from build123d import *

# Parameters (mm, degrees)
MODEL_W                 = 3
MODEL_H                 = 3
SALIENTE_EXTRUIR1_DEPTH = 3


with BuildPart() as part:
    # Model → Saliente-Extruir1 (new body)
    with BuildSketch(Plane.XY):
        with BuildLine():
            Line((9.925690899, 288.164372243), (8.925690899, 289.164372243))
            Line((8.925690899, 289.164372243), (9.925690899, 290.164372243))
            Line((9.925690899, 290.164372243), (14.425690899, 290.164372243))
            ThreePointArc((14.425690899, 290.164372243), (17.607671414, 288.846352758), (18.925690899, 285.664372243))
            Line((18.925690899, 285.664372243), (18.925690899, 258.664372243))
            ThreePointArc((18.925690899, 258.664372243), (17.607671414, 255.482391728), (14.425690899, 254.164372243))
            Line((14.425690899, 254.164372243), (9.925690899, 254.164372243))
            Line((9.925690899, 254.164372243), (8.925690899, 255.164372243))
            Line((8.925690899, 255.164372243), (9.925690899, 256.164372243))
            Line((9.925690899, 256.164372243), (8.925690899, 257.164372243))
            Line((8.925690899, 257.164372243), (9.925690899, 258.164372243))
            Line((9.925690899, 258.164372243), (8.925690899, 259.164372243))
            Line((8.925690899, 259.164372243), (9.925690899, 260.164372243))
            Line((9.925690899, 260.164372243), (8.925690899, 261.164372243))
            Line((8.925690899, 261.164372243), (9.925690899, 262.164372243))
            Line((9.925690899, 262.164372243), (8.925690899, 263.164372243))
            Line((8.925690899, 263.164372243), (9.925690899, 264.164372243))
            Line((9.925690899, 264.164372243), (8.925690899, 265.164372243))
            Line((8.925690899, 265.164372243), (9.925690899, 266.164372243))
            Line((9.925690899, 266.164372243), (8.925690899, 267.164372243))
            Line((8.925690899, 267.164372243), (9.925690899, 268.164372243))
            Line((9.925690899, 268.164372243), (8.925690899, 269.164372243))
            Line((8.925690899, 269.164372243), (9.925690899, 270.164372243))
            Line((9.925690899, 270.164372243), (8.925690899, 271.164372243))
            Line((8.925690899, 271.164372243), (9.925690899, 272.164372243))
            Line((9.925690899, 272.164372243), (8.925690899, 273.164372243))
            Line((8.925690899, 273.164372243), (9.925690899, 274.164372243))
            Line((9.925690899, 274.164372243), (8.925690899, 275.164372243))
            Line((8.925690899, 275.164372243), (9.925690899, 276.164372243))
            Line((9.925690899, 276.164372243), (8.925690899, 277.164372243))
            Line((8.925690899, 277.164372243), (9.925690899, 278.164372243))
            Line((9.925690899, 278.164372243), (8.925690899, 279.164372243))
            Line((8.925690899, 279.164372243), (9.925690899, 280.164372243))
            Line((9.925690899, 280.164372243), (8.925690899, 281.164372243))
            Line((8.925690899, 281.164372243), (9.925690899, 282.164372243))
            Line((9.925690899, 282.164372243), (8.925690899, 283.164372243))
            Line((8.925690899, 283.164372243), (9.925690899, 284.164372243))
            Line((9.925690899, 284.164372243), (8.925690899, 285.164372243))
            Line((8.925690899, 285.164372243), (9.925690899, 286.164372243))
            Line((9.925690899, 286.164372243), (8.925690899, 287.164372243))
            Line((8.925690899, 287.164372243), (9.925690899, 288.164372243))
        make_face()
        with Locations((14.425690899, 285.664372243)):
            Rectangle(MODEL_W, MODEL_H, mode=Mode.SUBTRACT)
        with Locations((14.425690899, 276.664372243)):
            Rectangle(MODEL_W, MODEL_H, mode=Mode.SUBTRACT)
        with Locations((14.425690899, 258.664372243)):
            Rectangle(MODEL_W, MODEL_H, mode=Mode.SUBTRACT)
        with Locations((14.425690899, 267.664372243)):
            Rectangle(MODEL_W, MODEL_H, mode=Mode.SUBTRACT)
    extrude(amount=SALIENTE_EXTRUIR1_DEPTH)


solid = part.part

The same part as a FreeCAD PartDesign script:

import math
import FreeCAD as App
import Part
import Sketcher
from FreeCAD import Vector

doc = App.newDocument("Part")
body = doc.addObject("PartDesign::Body", "Body")

# Sketch on XY plane
sketch1 = body.newObject("Sketcher::SketchObject", "Sketch")
sketch1.AttachmentSupport = (doc.getObject("XY_Plane"), [""])
sketch1.MapMode = "FlatFace"
sketch1.addGeometry(Part.LineSegment(Vector(8.925691, 289.164372, 0), Vector(9.925691, 288.164372, 0)), False)
sketch1.addGeometry(Part.LineSegment(Vector(9.925691, 288.164372, 0), Vector(8.925691, 287.164372, 0)), False)
sketch1.addGeometry(Part.LineSegment(Vector(8.925691, 287.164372, 0), Vector(9.925691, 286.164372, 0)), False)
sketch1.addGeometry(Part.LineSegment(Vector(9.925691, 286.164372, 0), Vector(8.925691, 285.164372, 0)), False)
sketch1.addGeometry(Part.LineSegment(Vector(8.925691, 285.164372, 0), Vector(9.925691, 284.164372, 0)), False)
sketch1.addGeometry(Part.LineSegment(Vector(9.925691, 284.164372, 0), Vector(8.925691, 283.164372, 0)), False)
sketch1.addGeometry(Part.LineSegment(Vector(8.925691, 283.164372, 0), Vector(9.925691, 282.164372, 0)), False)
sketch1.addGeometry(Part.LineSegment(Vector(9.925691, 282.164372, 0), Vector(8.925691, 281.164372, 0)), False)
sketch1.addGeometry(Part.LineSegment(Vector(8.925691, 281.164372, 0), Vector(9.925691, 280.164372, 0)), False)
sketch1.addGeometry(Part.LineSegment(Vector(9.925691, 280.164372, 0), Vector(8.925691, 279.164372, 0)), False)
sketch1.addGeometry(Part.LineSegment(Vector(8.925691, 279.164372, 0), Vector(9.925691, 278.164372, 0)), False)
sketch1.addGeometry(Part.LineSegment(Vector(9.925691, 278.164372, 0), Vector(8.925691, 277.164372, 0)), False)
sketch1.addGeometry(Part.LineSegment(Vector(8.925691, 277.164372, 0), Vector(9.925691, 276.164372, 0)), False)
sketch1.addGeometry(Part.LineSegment(Vector(9.925691, 276.164372, 0), Vector(8.925691, 275.164372, 0)), False)
sketch1.addGeometry(Part.LineSegment(Vector(8.925691, 275.164372, 0), Vector(9.925691, 274.164372, 0)), False)
sketch1.addGeometry(Part.LineSegment(Vector(9.925691, 274.164372, 0), Vector(8.925691, 273.164372, 0)), False)
sketch1.addGeometry(Part.LineSegment(Vector(8.925691, 273.164372, 0), Vector(9.925691, 272.164372, 0)), False)
sketch1.addGeometry(Part.LineSegment(Vector(9.925691, 272.164372, 0), Vector(8.925691, 271.164372, 0)), False)
sketch1.addGeometry(Part.LineSegment(Vector(8.925691, 271.164372, 0), Vector(9.925691, 270.164372, 0)), False)
sketch1.addGeometry(Part.LineSegment(Vector(9.925691, 270.164372, 0), Vector(8.925691, 269.164372, 0)), False)
sketch1.addGeometry(Part.LineSegment(Vector(8.925691, 269.164372, 0), Vector(9.925691, 268.164372, 0)), False)
sketch1.addGeometry(Part.LineSegment(Vector(9.925691, 268.164372, 0), Vector(8.925691, 267.164372, 0)), False)
sketch1.addGeometry(Part.LineSegment(Vector(8.925691, 267.164372, 0), Vector(9.925691, 266.164372, 0)), False)
sketch1.addGeometry(Part.LineSegment(Vector(9.925691, 266.164372, 0), Vector(8.925691, 265.164372, 0)), False)
sketch1.addGeometry(Part.LineSegment(Vector(8.925691, 265.164372, 0), Vector(9.925691, 264.164372, 0)), False)
sketch1.addGeometry(Part.LineSegment(Vector(9.925691, 264.164372, 0), Vector(8.925691, 263.164372, 0)), False)
sketch1.addGeometry(Part.LineSegment(Vector(8.925691, 263.164372, 0), Vector(9.925691, 262.164372, 0)), False)
sketch1.addGeometry(Part.LineSegment(Vector(9.925691, 262.164372, 0), Vector(8.925691, 261.164372, 0)), False)
sketch1.addGeometry(Part.LineSegment(Vector(8.925691, 261.164372, 0), Vector(9.925691, 260.164372, 0)), False)
sketch1.addGeometry(Part.LineSegment(Vector(9.925691, 260.164372, 0), Vector(8.925691, 259.164372, 0)), False)
sketch1.addGeometry(Part.LineSegment(Vector(8.925691, 259.164372, 0), Vector(9.925691, 258.164372, 0)), False)
sketch1.addGeometry(Part.LineSegment(Vector(9.925691, 258.164372, 0), Vector(8.925691, 257.164372, 0)), False)
sketch1.addGeometry(Part.LineSegment(Vector(8.925691, 257.164372, 0), Vector(9.925691, 256.164372, 0)), False)
sketch1.addGeometry(Part.LineSegment(Vector(9.925691, 256.164372, 0), Vector(8.925691, 255.164372, 0)), False)
sketch1.addGeometry(Part.LineSegment(Vector(8.925691, 255.164372, 0), Vector(9.925691, 254.164372, 0)), False)
sketch1.addGeometry(Part.LineSegment(Vector(9.925691, 254.164372, 0), Vector(14.425691, 254.164372, 0)), False)
sketch1.addGeometry(Part.ArcOfCircle(Part.Circle(Vector(14.425691, 258.664372, 0), Vector(0, 0, 1), 4.5), math.radians(-90), math.radians(0)), False)
sketch1.addGeometry(Part.LineSegment(Vector(18.925691, 258.664372, 0), Vector(18.925691, 285.664372, 0)), False)
sketch1.addGeometry(Part.ArcOfCircle(Part.Circle(Vector(14.425691, 285.664372, 0), Vector(0, 0, 1), 4.5), math.radians(0), math.radians(90)), False)
sketch1.addGeometry(Part.LineSegment(Vector(14.425691, 290.164372, 0), Vector(9.925691, 290.164372, 0)), False)
sketch1.addGeometry(Part.LineSegment(Vector(9.925691, 290.164372, 0), Vector(8.925691, 289.164372, 0)), False)
sketch1.addGeometry(Part.LineSegment(Vector(12.925691, 257.164372, 0), Vector(12.925691, 260.164372, 0)), False)
sketch1.addGeometry(Part.LineSegment(Vector(12.925691, 260.164372, 0), Vector(15.925691, 260.164372, 0)), False)
sketch1.addGeometry(Part.LineSegment(Vector(15.925691, 260.164372, 0), Vector(15.925691, 257.164372, 0)), False)
sketch1.addGeometry(Part.LineSegment(Vector(15.925691, 257.164372, 0), Vector(12.925691, 257.164372, 0)), False)
sketch1.addGeometry(Part.LineSegment(Vector(12.925691, 266.164372, 0), Vector(12.925691, 269.164372, 0)), False)
sketch1.addGeometry(Part.LineSegment(Vector(12.925691, 269.164372, 0), Vector(15.925691, 269.164372, 0)), False)
sketch1.addGeometry(Part.LineSegment(Vector(15.925691, 269.164372, 0), Vector(15.925691, 266.164372, 0)), False)
sketch1.addGeometry(Part.LineSegment(Vector(15.925691, 266.164372, 0), Vector(12.925691, 266.164372, 0)), False)
sketch1.addGeometry(Part.LineSegment(Vector(12.925691, 275.164372, 0), Vector(12.925691, 278.164372, 0)), False)
sketch1.addGeometry(Part.LineSegment(Vector(12.925691, 278.164372, 0), Vector(15.925691, 278.164372, 0)), False)
sketch1.addGeometry(Part.LineSegment(Vector(15.925691, 278.164372, 0), Vector(15.925691, 275.164372, 0)), False)
sketch1.addGeometry(Part.LineSegment(Vector(15.925691, 275.164372, 0), Vector(12.925691, 275.164372, 0)), False)
sketch1.addGeometry(Part.LineSegment(Vector(12.925691, 284.164372, 0), Vector(12.925691, 287.164372, 0)), False)
sketch1.addGeometry(Part.LineSegment(Vector(12.925691, 287.164372, 0), Vector(15.925691, 287.164372, 0)), False)
sketch1.addGeometry(Part.LineSegment(Vector(15.925691, 287.164372, 0), Vector(15.925691, 284.164372, 0)), False)
sketch1.addGeometry(Part.LineSegment(Vector(15.925691, 284.164372, 0), Vector(12.925691, 284.164372, 0)), False)
sketch1.addConstraint(Sketcher.Constraint("Coincident", 0, 2, 1, 1))
sketch1.addConstraint(Sketcher.Constraint("Coincident", 1, 2, 2, 1))
sketch1.addConstraint(Sketcher.Constraint("Coincident", 2, 2, 3, 1))
sketch1.addConstraint(Sketcher.Constraint("Coincident", 3, 2, 4, 1))
sketch1.addConstraint(Sketcher.Constraint("Coincident", 4, 2, 5, 1))
sketch1.addConstraint(Sketcher.Constraint("Coincident", 5, 2, 6, 1))
sketch1.addConstraint(Sketcher.Constraint("Coincident", 6, 2, 7, 1))
sketch1.addConstraint(Sketcher.Constraint("Coincident", 7, 2, 8, 1))
sketch1.addConstraint(Sketcher.Constraint("Coincident", 8, 2, 9, 1))
sketch1.addConstraint(Sketcher.Constraint("Coincident", 9, 2, 10, 1))
sketch1.addConstraint(Sketcher.Constraint("Coincident", 10, 2, 11, 1))
sketch1.addConstraint(Sketcher.Constraint("Coincident", 11, 2, 12, 1))
sketch1.addConstraint(Sketcher.Constraint("Coincident", 12, 2, 13, 1))
sketch1.addConstraint(Sketcher.Constraint("Coincident", 13, 2, 14, 1))
sketch1.addConstraint(Sketcher.Constraint("Coincident", 14, 2, 15, 1))
sketch1.addConstraint(Sketcher.Constraint("Coincident", 15, 2, 16, 1))
sketch1.addConstraint(Sketcher.Constraint("Coincident", 16, 2, 17, 1))
sketch1.addConstraint(Sketcher.Constraint("Coincident", 17, 2, 18, 1))
sketch1.addConstraint(Sketcher.Constraint("Coincident", 18, 2, 19, 1))
sketch1.addConstraint(Sketcher.Constraint("Coincident", 19, 2, 20, 1))
sketch1.addConstraint(Sketcher.Constraint("Coincident", 20, 2, 21, 1))
sketch1.addConstraint(Sketcher.Constraint("Coincident", 21, 2, 22, 1))
sketch1.addConstraint(Sketcher.Constraint("Coincident", 22, 2, 23, 1))
sketch1.addConstraint(Sketcher.Constraint("Coincident", 23, 2, 24, 1))
sketch1.addConstraint(Sketcher.Constraint("Coincident", 24, 2, 25, 1))
sketch1.addConstraint(Sketcher.Constraint("Coincident", 25, 2, 26, 1))
sketch1.addConstraint(Sketcher.Constraint("Coincident", 26, 2, 27, 1))
sketch1.addConstraint(Sketcher.Constraint("Coincident", 27, 2, 28, 1))
sketch1.addConstraint(Sketcher.Constraint("Coincident", 28, 2, 29, 1))
sketch1.addConstraint(Sketcher.Constraint("Coincident", 29, 2, 30, 1))
sketch1.addConstraint(Sketcher.Constraint("Coincident", 30, 2, 31, 1))
sketch1.addConstraint(Sketcher.Constraint("Coincident", 31, 2, 32, 1))
sketch1.addConstraint(Sketcher.Constraint("Coincident", 32, 2, 33, 1))
sketch1.addConstraint(Sketcher.Constraint("Coincident", 33, 2, 34, 1))
sketch1.addConstraint(Sketcher.Constraint("Coincident", 34, 2, 35, 1))
sketch1.addConstraint(Sketcher.Constraint("Tangent", 35, 2, 36, 1))
sketch1.addConstraint(Sketcher.Constraint("Tangent", 36, 2, 37, 1))
sketch1.addConstraint(Sketcher.Constraint("Tangent", 37, 2, 38, 1))
sketch1.addConstraint(Sketcher.Constraint("Tangent", 38, 2, 39, 1))
sketch1.addConstraint(Sketcher.Constraint("Coincident", 39, 2, 40, 1))
sketch1.addConstraint(Sketcher.Constraint("Coincident", 40, 2, 0, 1))
sketch1.addConstraint(Sketcher.Constraint("Coincident", 41, 2, 42, 1))
sketch1.addConstraint(Sketcher.Constraint("Coincident", 42, 2, 43, 1))
sketch1.addConstraint(Sketcher.Constraint("Coincident", 43, 2, 44, 1))
sketch1.addConstraint(Sketcher.Constraint("Coincident", 44, 2, 41, 1))
sketch1.addConstraint(Sketcher.Constraint("Coincident", 45, 2, 46, 1))
sketch1.addConstraint(Sketcher.Constraint("Coincident", 46, 2, 47, 1))
sketch1.addConstraint(Sketcher.Constraint("Coincident", 47, 2, 48, 1))
sketch1.addConstraint(Sketcher.Constraint("Coincident", 48, 2, 45, 1))
sketch1.addConstraint(Sketcher.Constraint("Coincident", 49, 2, 50, 1))
sketch1.addConstraint(Sketcher.Constraint("Coincident", 50, 2, 51, 1))
sketch1.addConstraint(Sketcher.Constraint("Coincident", 51, 2, 52, 1))
sketch1.addConstraint(Sketcher.Constraint("Coincident", 52, 2, 49, 1))
sketch1.addConstraint(Sketcher.Constraint("Coincident", 53, 2, 54, 1))
sketch1.addConstraint(Sketcher.Constraint("Coincident", 54, 2, 55, 1))
sketch1.addConstraint(Sketcher.Constraint("Coincident", 55, 2, 56, 1))
sketch1.addConstraint(Sketcher.Constraint("Coincident", 56, 2, 53, 1))
sketch1.addConstraint(Sketcher.Constraint("Horizontal", 35))
sketch1.addConstraint(Sketcher.Constraint("Vertical", 37))
sketch1.addConstraint(Sketcher.Constraint("Horizontal", 39))
sketch1.addConstraint(Sketcher.Constraint("Vertical", 41))
sketch1.addConstraint(Sketcher.Constraint("Horizontal", 42))
sketch1.addConstraint(Sketcher.Constraint("Vertical", 43))
sketch1.addConstraint(Sketcher.Constraint("Horizontal", 44))
sketch1.addConstraint(Sketcher.Constraint("Vertical", 45))
sketch1.addConstraint(Sketcher.Constraint("Horizontal", 46))
sketch1.addConstraint(Sketcher.Constraint("Vertical", 47))
sketch1.addConstraint(Sketcher.Constraint("Horizontal", 48))
sketch1.addConstraint(Sketcher.Constraint("Vertical", 49))
sketch1.addConstraint(Sketcher.Constraint("Horizontal", 50))
sketch1.addConstraint(Sketcher.Constraint("Vertical", 51))
sketch1.addConstraint(Sketcher.Constraint("Horizontal", 52))
sketch1.addConstraint(Sketcher.Constraint("Vertical", 53))
sketch1.addConstraint(Sketcher.Constraint("Horizontal", 54))
sketch1.addConstraint(Sketcher.Constraint("Vertical", 55))
sketch1.addConstraint(Sketcher.Constraint("Horizontal", 56))
sketch1.addConstraint(Sketcher.Constraint("Equal", 36, 38))
sketch1.addConstraint(Sketcher.Constraint("Perpendicular", 0, 1))
sketch1.addConstraint(Sketcher.Constraint("Perpendicular", 1, 2))
sketch1.addConstraint(Sketcher.Constraint("Perpendicular", 2, 3))
sketch1.addConstraint(Sketcher.Constraint("Perpendicular", 3, 4))
sketch1.addConstraint(Sketcher.Constraint("Perpendicular", 4, 5))
sketch1.addConstraint(Sketcher.Constraint("Perpendicular", 5, 6))
sketch1.addConstraint(Sketcher.Constraint("Perpendicular", 6, 7))
sketch1.addConstraint(Sketcher.Constraint("Perpendicular", 7, 8))
sketch1.addConstraint(Sketcher.Constraint("Perpendicular", 8, 9))
sketch1.addConstraint(Sketcher.Constraint("Perpendicular", 9, 10))
sketch1.addConstraint(Sketcher.Constraint("Perpendicular", 10, 11))
sketch1.addConstraint(Sketcher.Constraint("Perpendicular", 11, 12))
sketch1.addConstraint(Sketcher.Constraint("Perpendicular", 12, 13))
sketch1.addConstraint(Sketcher.Constraint("Perpendicular", 13, 14))
sketch1.addConstraint(Sketcher.Constraint("Perpendicular", 14, 15))
sketch1.addConstraint(Sketcher.Constraint("Perpendicular", 15, 16))
sketch1.addConstraint(Sketcher.Constraint("Perpendicular", 16, 17))
sketch1.addConstraint(Sketcher.Constraint("Perpendicular", 17, 18))
sketch1.addConstraint(Sketcher.Constraint("Perpendicular", 18, 19))
sketch1.addConstraint(Sketcher.Constraint("Perpendicular", 19, 20))
sketch1.addConstraint(Sketcher.Constraint("Perpendicular", 20, 21))
sketch1.addConstraint(Sketcher.Constraint("Perpendicular", 21, 22))
sketch1.addConstraint(Sketcher.Constraint("Perpendicular", 22, 23))
sketch1.addConstraint(Sketcher.Constraint("Perpendicular", 23, 24))
sketch1.addConstraint(Sketcher.Constraint("Perpendicular", 24, 25))
sketch1.addConstraint(Sketcher.Constraint("Perpendicular", 25, 26))
sketch1.addConstraint(Sketcher.Constraint("Perpendicular", 26, 27))
sketch1.addConstraint(Sketcher.Constraint("Perpendicular", 27, 28))
sketch1.addConstraint(Sketcher.Constraint("Perpendicular", 28, 29))
sketch1.addConstraint(Sketcher.Constraint("Perpendicular", 29, 30))
sketch1.addConstraint(Sketcher.Constraint("Perpendicular", 30, 31))
sketch1.addConstraint(Sketcher.Constraint("Perpendicular", 31, 32))
sketch1.addConstraint(Sketcher.Constraint("Perpendicular", 32, 33))
sketch1.addConstraint(Sketcher.Constraint("Perpendicular", 33, 34))
sketch1.addConstraint(Sketcher.Constraint("Perpendicular", 34, 40))
sketch1.addConstraint(Sketcher.Constraint("Horizontal", 28, 2, 41, 2))
sketch1.addConstraint(Sketcher.Constraint("Horizontal", 31, 2, 43, 2))
sketch1.addConstraint(Sketcher.Constraint("Horizontal", 19, 2, 45, 2))
sketch1.addConstraint(Sketcher.Constraint("Horizontal", 22, 2, 47, 2))
sketch1.addConstraint(Sketcher.Constraint("Horizontal", 10, 2, 49, 2))
sketch1.addConstraint(Sketcher.Constraint("Horizontal", 13, 2, 51, 2))
sketch1.addConstraint(Sketcher.Constraint("Horizontal", 1, 2, 53, 2))
sketch1.addConstraint(Sketcher.Constraint("Horizontal", 4, 2, 55, 2))
sketch1.addConstraint(Sketcher.Constraint("Vertical", 0, 2, 2, 2))
sketch1.addConstraint(Sketcher.Constraint("Vertical", 1, 2, 3, 2))
sketch1.addConstraint(Sketcher.Constraint("Vertical", 2, 2, 4, 2))
sketch1.addConstraint(Sketcher.Constraint("Vertical", 3, 2, 5, 2))
sketch1.addConstraint(Sketcher.Constraint("Vertical", 4, 2, 6, 2))
sketch1.addConstraint(Sketcher.Constraint("Vertical", 5, 2, 7, 2))
sketch1.addConstraint(Sketcher.Constraint("Vertical", 6, 2, 8, 2))
sketch1.addConstraint(Sketcher.Constraint("Vertical", 7, 2, 9, 2))
sketch1.addConstraint(Sketcher.Constraint("Vertical", 8, 2, 10, 2))
sketch1.addConstraint(Sketcher.Constraint("Vertical", 9, 2, 11, 2))
sketch1.addConstraint(Sketcher.Constraint("Vertical", 10, 2, 12, 2))
sketch1.addConstraint(Sketcher.Constraint("Vertical", 11, 2, 13, 2))
sketch1.addConstraint(Sketcher.Constraint("Vertical", 12, 2, 14, 2))
sketch1.addConstraint(Sketcher.Constraint("Vertical", 13, 2, 15, 2))
sketch1.addConstraint(Sketcher.Constraint("Vertical", 14, 2, 16, 2))
sketch1.addConstraint(Sketcher.Constraint("Vertical", 15, 2, 17, 2))
sketch1.addConstraint(Sketcher.Constraint("Vertical", 16, 2, 18, 2))
sketch1.addConstraint(Sketcher.Constraint("Vertical", 17, 2, 19, 2))
sketch1.addConstraint(Sketcher.Constraint("Vertical", 18, 2, 20, 2))
sketch1.addConstraint(Sketcher.Constraint("Vertical", 19, 2, 21, 2))
sketch1.addConstraint(Sketcher.Constraint("Vertical", 20, 2, 22, 2))
sketch1.addConstraint(Sketcher.Constraint("Vertical", 21, 2, 23, 2))
sketch1.addConstraint(Sketcher.Constraint("Vertical", 22, 2, 24, 2))
sketch1.addConstraint(Sketcher.Constraint("Vertical", 23, 2, 25, 2))
sketch1.addConstraint(Sketcher.Constraint("Vertical", 24, 2, 26, 2))
sketch1.addConstraint(Sketcher.Constraint("Vertical", 25, 2, 27, 2))
sketch1.addConstraint(Sketcher.Constraint("Vertical", 26, 2, 28, 2))
sketch1.addConstraint(Sketcher.Constraint("Vertical", 27, 2, 29, 2))
sketch1.addConstraint(Sketcher.Constraint("Vertical", 28, 2, 30, 2))
sketch1.addConstraint(Sketcher.Constraint("Vertical", 29, 2, 31, 2))
sketch1.addConstraint(Sketcher.Constraint("Vertical", 30, 2, 32, 2))
sketch1.addConstraint(Sketcher.Constraint("Vertical", 31, 2, 33, 2))
sketch1.addConstraint(Sketcher.Constraint("Vertical", 32, 2, 34, 2))
sketch1.addConstraint(Sketcher.Constraint("Vertical", 34, 2, 39, 2))
sketch1.addConstraint(Sketcher.Constraint("Vertical", 33, 2, 40, 2))
sketch1.addConstraint(Sketcher.Constraint("Vertical", 44, 2, 45, 2))
sketch1.addConstraint(Sketcher.Constraint("Vertical", 43, 2, 46, 2))
sketch1.addConstraint(Sketcher.Constraint("Vertical", 48, 2, 49, 2))
sketch1.addConstraint(Sketcher.Constraint("Vertical", 47, 2, 50, 2))
sketch1.addConstraint(Sketcher.Constraint("Vertical", 52, 2, 53, 2))
sketch1.addConstraint(Sketcher.Constraint("Vertical", 51, 2, 54, 2))
sketch1.addConstraint(Sketcher.Constraint("Equal", 56, 41))
sketch1.addConstraint(Sketcher.Constraint("Equal", 43, 45))
sketch1.addConstraint(Sketcher.Constraint("Radius", 36, 4.5))
sketch1.addConstraint(Sketcher.Constraint("DistanceX", 42, 1, 42, 2, 3.0))
sketch1.addConstraint(Sketcher.Constraint("DistanceX", 35, 1, 35, 2, 4.5))
sketch1.addConstraint(Sketcher.Constraint("DistanceX", 28, 2, 41, 2, 3.0))
sketch1.addConstraint(Sketcher.Constraint("DistanceX", -1, 1, 36, 3, 14.425691))
sketch1.addConstraint(Sketcher.Constraint("DistanceY", -1, 1, 36, 3, 258.664372))
pad1 = body.newObject("PartDesign::Pad", "Pad")
pad1.Profile = sketch1
pad1.Length = 3

doc.recompute()
